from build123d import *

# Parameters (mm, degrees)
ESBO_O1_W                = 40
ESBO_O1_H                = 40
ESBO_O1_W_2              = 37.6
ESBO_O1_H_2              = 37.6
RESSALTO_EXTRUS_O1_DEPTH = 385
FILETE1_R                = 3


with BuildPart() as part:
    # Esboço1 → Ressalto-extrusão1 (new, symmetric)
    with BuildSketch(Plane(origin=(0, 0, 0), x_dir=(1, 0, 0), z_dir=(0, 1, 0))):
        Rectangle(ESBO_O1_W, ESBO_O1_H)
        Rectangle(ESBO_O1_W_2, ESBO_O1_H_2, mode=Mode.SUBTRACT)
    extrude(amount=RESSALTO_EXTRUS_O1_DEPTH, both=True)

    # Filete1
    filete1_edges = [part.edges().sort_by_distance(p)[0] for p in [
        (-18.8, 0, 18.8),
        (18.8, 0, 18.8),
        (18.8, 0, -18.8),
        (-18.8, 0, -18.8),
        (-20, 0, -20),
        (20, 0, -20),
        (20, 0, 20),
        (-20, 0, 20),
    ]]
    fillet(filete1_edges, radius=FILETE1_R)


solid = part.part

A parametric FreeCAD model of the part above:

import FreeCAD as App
import Part
import Sketcher
Q = App.Units.Quantity


def edges_at(feature, points):
    """Names of the edges that pass closest to the given points."""
    edges = feature.Shape.Edges
    near = lambda p: min(range(len(edges)), key=lambda i: edges[i].distToShape(Part.Vertex(*p))[0])
    return sorted({f"Edge{near(p) + 1}" for p in points})

doc = App.newDocument("Part")
body = doc.addObject("PartDesign::Body", "Body")

# Sketch on XZ plane
sketch1 = doc.addObject("Sketcher::SketchObject", "Sketch")
body.addObject(sketch1)
sketch1.AttachmentSupport = (doc.XZ_Plane, [""])
sketch1.MapMode = "FlatFace"
sketch1.addGeometry([
    Part.LineSegment(App.Vector(-20, -20, 0), App.Vector(-20, 20, 0)),  # 0
    Part.LineSegment(App.Vector(-20, 20, 0), App.Vector(20, 20, 0)),  # 1
    Part.LineSegment(App.Vector(20, 20, 0), App.Vector(20, -20, 0)),  # 2
    Part.LineSegment(App.Vector(20, -20, 0), App.Vector(-20, -20, 0)),  # 3
    Part.LineSegment(App.Vector(18.8, 18.8, 0), App.Vector(-18.8, 18.8, 0)),  # 4
    Part.LineSegment(App.Vector(-18.8, 18.8, 0), App.Vector(-18.8, -18.8, 0)),  # 5
    Part.LineSegment(App.Vector(-18.8, -18.8, 0), App.Vector(18.8, -18.8, 0)),  # 6
    Part.LineSegment(App.Vector(18.8, -18.8, 0), App.Vector(18.8, 18.8, 0)),  # 7
], False)
sketch1.addConstraint([
    Sketcher.Constraint("Coincident", 0, 2, 1, 1),
    Sketcher.Constraint("Coincident", 1, 2, 2, 1),
    Sketcher.Constraint("Coincident", 2, 2, 3, 1),
    Sketcher.Constraint("Coincident", 3, 2, 0, 1),
    Sketcher.Constraint("Coincident", 4, 2, 5, 1),
    Sketcher.Constraint("Coincident", 5, 2, 6, 1),
    Sketcher.Constraint("Coincident", 6, 2, 7, 1),
    Sketcher.Constraint("Coincident", 7, 2, 4, 1),
    Sketcher.Constraint("Vertical", 0),
    Sketcher.Constraint("Horizontal", 1),
    Sketcher.Constraint("Vertical", 2),
    Sketcher.Constraint("Horizontal", 3),
    Sketcher.Constraint("Horizontal", 4),
    Sketcher.Constraint("Vertical", 5),
    Sketcher.Constraint("Horizontal", 6),
    Sketcher.Constraint("Vertical", 7),
    Sketcher.Constraint("Symmetric", 0, 2, 2, 2, -1, 1),
    Sketcher.Constraint("Symmetric", 4, 2, 6, 2, -1, 1),
    Sketcher.Constraint("Equal", 3, 0),
    Sketcher.Constraint("Equal", 6, 5),
    Sketcher.Constraint("DistanceX", 1, 1, 1, 2, Q("40 mm")),
    Sketcher.Constraint("DistanceX", 4, 2, 4, 1, Q("37.6 mm")),
])
pad1 = doc.addObject("PartDesign::Pad", "Pad")
body.addObject(pad1)
pad1.Profile = sketch1
pad1.Length = 770
pad1.Midplane = True
doc.recompute()

fillet = doc.addObject("PartDesign::Fillet", "Fillet")
body.addObject(fillet)
fillet.Base = (pad1, edges_at(pad1, [
    (-18.8, 0, 18.8),
    (18.8, 0, 18.8),
    (18.8, 0, -18.8),
    (-18.8, 0, -18.8),
    (-20, 0, -20),
    (20, 0, -20),
    (20, 0, 20),
    (-20, 0, 20),
]))
fillet.Radius = 3

doc.recompute()
